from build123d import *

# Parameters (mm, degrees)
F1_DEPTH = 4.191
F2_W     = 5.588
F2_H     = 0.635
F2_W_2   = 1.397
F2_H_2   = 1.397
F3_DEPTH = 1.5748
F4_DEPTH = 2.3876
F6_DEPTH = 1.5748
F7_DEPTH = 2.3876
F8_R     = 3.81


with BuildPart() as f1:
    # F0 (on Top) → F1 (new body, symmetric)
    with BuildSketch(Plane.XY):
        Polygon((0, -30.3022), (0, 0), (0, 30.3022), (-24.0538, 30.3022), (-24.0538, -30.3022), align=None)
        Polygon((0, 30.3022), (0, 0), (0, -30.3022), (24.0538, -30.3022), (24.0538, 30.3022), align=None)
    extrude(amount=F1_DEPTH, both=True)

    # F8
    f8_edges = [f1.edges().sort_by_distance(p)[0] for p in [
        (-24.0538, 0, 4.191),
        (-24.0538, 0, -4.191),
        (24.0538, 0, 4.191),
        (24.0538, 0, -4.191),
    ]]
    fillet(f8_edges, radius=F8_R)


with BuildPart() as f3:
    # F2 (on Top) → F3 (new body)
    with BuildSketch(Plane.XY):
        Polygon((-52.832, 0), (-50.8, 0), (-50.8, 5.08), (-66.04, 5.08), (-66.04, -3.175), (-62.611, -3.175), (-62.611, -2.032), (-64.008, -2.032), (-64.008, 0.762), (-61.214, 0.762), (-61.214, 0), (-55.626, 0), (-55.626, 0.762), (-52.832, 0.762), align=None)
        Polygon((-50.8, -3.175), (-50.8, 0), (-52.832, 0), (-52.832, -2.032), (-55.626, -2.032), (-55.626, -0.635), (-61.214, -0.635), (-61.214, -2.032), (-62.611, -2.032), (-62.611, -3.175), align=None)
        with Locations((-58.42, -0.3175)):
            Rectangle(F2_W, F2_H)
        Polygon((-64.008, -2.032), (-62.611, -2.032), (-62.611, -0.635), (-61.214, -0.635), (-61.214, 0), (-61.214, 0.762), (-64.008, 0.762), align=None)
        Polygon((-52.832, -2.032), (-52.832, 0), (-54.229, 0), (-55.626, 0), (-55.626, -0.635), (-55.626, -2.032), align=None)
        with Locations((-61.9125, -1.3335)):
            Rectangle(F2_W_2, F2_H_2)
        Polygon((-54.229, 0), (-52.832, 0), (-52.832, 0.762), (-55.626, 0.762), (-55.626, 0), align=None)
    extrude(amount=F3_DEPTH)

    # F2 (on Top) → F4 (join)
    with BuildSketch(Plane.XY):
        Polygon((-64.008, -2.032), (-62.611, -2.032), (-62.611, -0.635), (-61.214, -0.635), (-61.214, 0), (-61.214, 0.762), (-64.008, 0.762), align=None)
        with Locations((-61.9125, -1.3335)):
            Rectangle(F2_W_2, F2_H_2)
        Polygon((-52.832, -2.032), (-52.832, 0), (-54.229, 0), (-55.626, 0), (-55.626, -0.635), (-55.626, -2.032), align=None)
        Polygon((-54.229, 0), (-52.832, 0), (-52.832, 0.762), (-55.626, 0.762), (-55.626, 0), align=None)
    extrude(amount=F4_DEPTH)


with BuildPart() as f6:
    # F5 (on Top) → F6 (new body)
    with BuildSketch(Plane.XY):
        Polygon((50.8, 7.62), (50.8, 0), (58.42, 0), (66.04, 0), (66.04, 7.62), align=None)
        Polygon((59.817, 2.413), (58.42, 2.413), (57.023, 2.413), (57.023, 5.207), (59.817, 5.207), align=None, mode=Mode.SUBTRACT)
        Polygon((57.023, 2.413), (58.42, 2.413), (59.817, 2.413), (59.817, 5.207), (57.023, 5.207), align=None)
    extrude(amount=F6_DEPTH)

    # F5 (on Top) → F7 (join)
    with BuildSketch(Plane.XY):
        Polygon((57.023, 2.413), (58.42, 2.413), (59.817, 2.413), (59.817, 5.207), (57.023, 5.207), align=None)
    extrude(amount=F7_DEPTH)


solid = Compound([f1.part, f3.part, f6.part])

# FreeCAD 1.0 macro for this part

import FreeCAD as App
import Part
import Sketcher

V = App.Vector
Q = App.Units.Quantity


def edges_at(feature, points):
    """Names of the edges that pass closest to the given points."""
    edges = feature.Shape.Edges
    near = lambda p: min(range(len(edges)), key=lambda i: edges[i].distToShape(Part.Vertex(*p))[0])
    return sorted({f"Edge{near(p) + 1}" for p in points})


def add_polygon(sketch, points):
    """Adds a closed chain of lines whose ends are joined by coincident constraints."""
    first, n = sketch.GeometryCount, len(points)
    for a, b in zip(points, points[1:] + points[:1]):
        sketch.addGeometry(Part.LineSegment(App.Vector(*a, 0), App.Vector(*b, 0)), False)
    for i in range(n):
        sketch.addConstraint(Sketcher.Constraint("Coincident", first + i, 2, first + (i + 1) % n, 1))

doc = App.newDocument("Part")
params = doc.addObject("Spreadsheet::Sheet", "Params")
for row, (alias, value) in enumerate([
    ("sketch1_width", "1.894 in"),
    ("sketch1_height", "2.386 in"),
    ("pad1_length", "0.33 in"),
    ("fillet_radius", "0.15 in"),
    ("sketch2_width", "0.6 in"),
    ("sketch2_height", "0.325 in"),
    ("pad2_length", "0.062 in"),
    ("sketch3_width", "0.11 in"),
    ("pad3_length", "0.094 in"),
    ("sketch4_width", "0.6 in"),
    ("sketch4_height", "0.3 in"),
    ("pad4_length", "0.062 in"),
    ("sketch5_width", "0.11 in"),
    ("pad5_length", "0.094 in"),
], start=1):
    params.set(f"A{row}", alias)
    params.set(f"B{row}", "=" + value)
    params.setAlias(f"B{row}", alias)

body = doc.addObject("PartDesign::Body", "Body")

sketch1 = body.newObject("Sketcher::SketchObject", "Sketch")
sketch1.AttachmentSupport = (doc.getObject("XY_Plane"), [""])
sketch1.MapMode = "FlatFace"
add_polygon(sketch1, [(-24, 30), (-24, -30), (24, -30), (24, 30)])
sketch1.addConstraint(Sketcher.Constraint("Vertical", 0))
sketch1.addConstraint(Sketcher.Constraint("Horizontal", 1))
sketch1.addConstraint(Sketcher.Constraint("Vertical", 2))
sketch1.addConstraint(Sketcher.Constraint("Horizontal", 3))
sketch1.addConstraint(Sketcher.Constraint("Symmetric", 0, 2, 2, 2, -1, 1))
sketch1.addConstraint(Sketcher.Constraint("DistanceX", 1, 1, 1, 2, Q("1.894 in")))
sketch1.addConstraint(Sketcher.Constraint("DistanceY", 0, 2, 0, 1, Q("2.386 in")))
sketch1.setExpression("Constraints[9]", "Params.sketch1_width")
sketch1.setExpression("Constraints[10]", "Params.sketch1_height")
pad1 = body.newObject("PartDesign::Pad", "Pad")
pad1.Profile = sketch1
pad1.setExpression("Length", "Params.pad1_length")
pad1.Midplane = True
doc.recompute()

fillet = body.newObject("PartDesign::Fillet", "Fillet")
fillet.Base = (pad1, edges_at(pad1, [
    (-24.054, 0, 4.191),
    (-24.054, 0, -4.191),
    (24.054, 0, 4.191),
    (24.054, 0, -4.191),
]))
fillet.setExpression("Radius", "Params.fillet_radius")
body2 = doc.addObject("PartDesign::Body", "Body001")

sketch2 = body2.newObject("Sketcher::SketchObject", "Sketch001")
sketch2.AttachmentSupport = (doc.getObject("XY_Plane001"), [""])
sketch2.MapMode = "FlatFace"
add_polygon(sketch2, [(-51, 5), (-66, 5), (-66, -3), (-51, -3)])
sketch2.addConstraint(Sketcher.Constraint("Horizontal", 0))
sketch2.addConstraint(Sketcher.Constraint("Vertical", 1))
sketch2.addConstraint(Sketcher.Constraint("Horizontal", 2))
sketch2.addConstraint(Sketcher.Constraint("Vertical", 3))
sketch2.addConstraint(Sketcher.Constraint("DistanceX", 0, 2, 0, 1, Q("0.6 in")))
sketch2.addConstraint(Sketcher.Constraint("DistanceX", 2, 2, -1, 1, Q("2 in")))
sketch2.addConstraint(Sketcher.Constraint("DistanceY", -1, 1, 0, 2, Q("0.2 in")))
sketch2.addConstraint(Sketcher.Constraint("DistanceY", 1, 2, 1, 1, Q("0.325 in")))
sketch2.setExpression("Constraints[8]", "Params.sketch2_width")
sketch2.setExpression("Constraints[11]", "Params.sketch2_height")
pad2 = body2.newObject("PartDesign::Pad", "Pad001")
pad2.Profile = sketch2
pad2.setExpression("Length", "Params.pad2_length")

sketch3 = body2.newObject("Sketcher::SketchObject", "Sketch002")
sketch3.AttachmentSupport = (doc.getObject("XY_Plane001"), [""])
sketch3.MapMode = "FlatFace"
add_polygon(sketch3, [(-64, -2), (-61.2, -2), (-61.2, 0.8), (-64, 0.8)])
add_polygon(sketch3, [(-52.8, -2), (-52.8, 0.8), (-55.6, 0.8), (-55.6, -2)])
sketch3.addConstraint(Sketcher.Constraint("Horizontal", 0))
sketch3.addConstraint(Sketcher.Constraint("Vertical", 1))
sketch3.addConstraint(Sketcher.Constraint("Horizontal", 2))
sketch3.addConstraint(Sketcher.Constraint("Vertical", 3))
sketch3.addConstraint(Sketcher.Constraint("Vertical", 4))
sketch3.addConstraint(Sketcher.Constraint("Horizontal", 5))
sketch3.addConstraint(Sketcher.Constraint("Vertical", 6))
sketch3.addConstraint(Sketcher.Constraint("Horizontal", 7))
sketch3.addConstraint(Sketcher.Constraint("Horizontal", 2, 2, 4, 2))
sketch3.addConstraint(Sketcher.Constraint("Horizontal", 3, 2, 6, 2))
sketch3.addConstraint(Sketcher.Constraint("Equal", 2, 5))
sketch3.addConstraint(Sketcher.Constraint("Equal", 7, 1))
sketch3.addConstraint(Sketcher.Constraint("DistanceX", 0, 1, 0, 2, Q("0.11 in")))
sketch3.addConstraint(Sketcher.Constraint("DistanceX", 0, 2, -1, 1, Q("2.41 in")))
sketch3.addConstraint(Sketcher.Constraint("DistanceY", 0, 2, -1, 1, Q("0.08 in")))
sketch3.addConstraint(Sketcher.Constraint("DistanceX", 4, 2, -1, 1, Q("2.08 in")))
sketch3.setExpression("Constraints[20]", "Params.sketch3_width")
pad3 = body2.newObject("PartDesign::Pad", "Pad002")
pad3.Profile = sketch3
pad3.setExpression("Length", "Params.pad3_length")
body3 = doc.addObject("PartDesign::Body", "Body002")

sketch4 = body3.newObject("Sketcher::SketchObject", "Sketch003")
sketch4.AttachmentSupport = (doc.getObject("XY_Plane002"), [""])
sketch4.MapMode = "FlatFace"
add_polygon(sketch4, [(51, 8), (51, 0), (66, 0), (66, 8)])
sketch4.addConstraint(Sketcher.Constraint("Vertical", 0))
sketch4.addConstraint(Sketcher.Constraint("Horizontal", 1))
sketch4.addConstraint(Sketcher.Constraint("Vertical", 2))
sketch4.addConstraint(Sketcher.Constraint("Horizontal", 3))
sketch4.addConstraint(Sketcher.Constraint("PointOnObject", 0, 2, -1))
sketch4.addConstraint(Sketcher.Constraint("DistanceX", 1, 1, 1, 2, Q("0.6 in")))
sketch4.addConstraint(Sketcher.Constraint("DistanceY", 0, 2, 0, 1, Q("0.3 in")))
sketch4.addConstraint(Sketcher.Constraint("DistanceX", -1, 1, 0, 2, Q("2 in")))
sketch4.setExpression("Constraints[9]", "Params.sketch4_width")
sketch4.setExpression("Constraints[10]", "Params.sketch4_height")
pad4 = body3.newObject("PartDesign::Pad", "Pad003")
pad4.Profile = sketch4
pad4.setExpression("Length", "Params.pad4_length")

sketch5 = body3.newObject("Sketcher::SketchObject", "Sketch004")
sketch5.AttachmentSupport = (doc.getObject("XY_Plane002"), [""])
sketch5.MapMode = "FlatFace"
add_polygon(sketch5, [(57, 2.4), (59.8, 2.4), (59.8, 5.2), (57, 5.2)])
sketch5.addConstraint(Sketcher.Constraint("Horizontal", 0))
sketch5.addConstraint(Sketcher.Constraint("Vertical", 1))
sketch5.addConstraint(Sketcher.Constraint("Horizontal", 2))
sketch5.addConstraint(Sketcher.Constraint("Vertical", 3))
sketch5.addConstraint(Sketcher.Constraint("Equal", 2, 1))
sketch5.addConstraint(Sketcher.Constraint("DistanceX", 0, 1, 0, 2, Q("0.11 in")))
sketch5.addConstraint(Sketcher.Constraint("DistanceX", -1, 1, 0, 2, Q("2.355 in")))
sketch5.addConstraint(Sketcher.Constraint("DistanceY", -1, 1, 0, 2, Q("0.095 in")))
sketch5.setExpression("Constraints[9]", "Params.sketch5_width")
pad5 = body3.newObject("PartDesign::Pad", "Pad004")
pad5.Profile = sketch5
pad5.setExpression("Length", "Params.pad5_length")

doc.recompute()
